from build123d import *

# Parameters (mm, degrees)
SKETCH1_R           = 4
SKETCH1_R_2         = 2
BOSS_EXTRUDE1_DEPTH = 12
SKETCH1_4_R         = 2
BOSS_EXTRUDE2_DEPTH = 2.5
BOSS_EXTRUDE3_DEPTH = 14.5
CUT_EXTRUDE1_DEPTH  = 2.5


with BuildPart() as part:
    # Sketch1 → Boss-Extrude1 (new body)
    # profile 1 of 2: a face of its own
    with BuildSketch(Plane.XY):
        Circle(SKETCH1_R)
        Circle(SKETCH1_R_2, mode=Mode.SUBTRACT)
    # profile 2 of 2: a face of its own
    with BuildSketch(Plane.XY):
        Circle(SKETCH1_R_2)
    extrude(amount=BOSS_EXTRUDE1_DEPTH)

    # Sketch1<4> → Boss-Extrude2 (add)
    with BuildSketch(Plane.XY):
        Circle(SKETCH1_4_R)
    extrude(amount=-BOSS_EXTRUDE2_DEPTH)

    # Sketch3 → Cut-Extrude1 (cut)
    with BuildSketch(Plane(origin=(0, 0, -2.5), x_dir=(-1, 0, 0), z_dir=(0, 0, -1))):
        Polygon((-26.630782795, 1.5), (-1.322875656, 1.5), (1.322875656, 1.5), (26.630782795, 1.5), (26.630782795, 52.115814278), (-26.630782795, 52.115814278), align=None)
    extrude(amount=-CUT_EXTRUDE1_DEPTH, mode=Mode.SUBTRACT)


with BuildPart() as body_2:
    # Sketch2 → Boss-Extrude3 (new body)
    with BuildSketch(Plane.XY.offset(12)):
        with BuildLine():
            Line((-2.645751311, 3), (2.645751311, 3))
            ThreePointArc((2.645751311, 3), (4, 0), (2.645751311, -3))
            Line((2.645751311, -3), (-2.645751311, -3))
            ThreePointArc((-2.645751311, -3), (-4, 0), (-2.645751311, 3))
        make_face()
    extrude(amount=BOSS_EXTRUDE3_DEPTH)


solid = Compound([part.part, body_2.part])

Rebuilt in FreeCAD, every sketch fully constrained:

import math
import FreeCAD as App
import Part
import Sketcher

doc = App.newDocument("Part")
body = doc.addObject("PartDesign::Body", "Body")

sketch1 = body.newObject("Sketcher::SketchObject", "Sketch")
sketch1.AttachmentSupport = (doc.getObject("XY_Plane"), [""])
sketch1.MapMode = "FlatFace"
sketch1.addGeometry(Part.Circle(App.Vector(0, 0, 0), App.Vector(0, 0, 1), 4), False)
sketch1.addConstraint([
    Sketcher.Constraint("Coincident", 0, 3, -1, 1),
    Sketcher.Constraint("Diameter", 0, 8.0),
])
pad1 = body.newObject("PartDesign::Pad", "Pad")
pad1.Profile = sketch1
pad1.Length = 12

sketch2 = body.newObject("Sketcher::SketchObject", "Sketch001")
sketch2.AttachmentSupport = (doc.getObject("XY_Plane"), [""])
sketch2.MapMode = "FlatFace"
sketch2.addGeometry(Part.Circle(App.Vector(0, 0, 0), App.Vector(0, 0, 1), 2), False)
sketch2.addConstraint([
    Sketcher.Constraint("Coincident", 0, 3, -1, 1),
    Sketcher.Constraint("Diameter", 0, 4.0),
])
pad2 = body.newObject("PartDesign::Pad", "Pad001")
pad2.Profile = sketch2
pad2.Length = 2.5
pad2.Reversed = True

sketch3 = body.newObject("Sketcher::SketchObject", "Sketch002")
sketch3.AttachmentSupport = (doc.getObject("XY_Plane"), [""])
sketch3.MapMode = "FlatFace"
sketch3.AttachmentOffset = App.Placement(App.Vector(0, 0, -2.5), App.Rotation())
sketch3.addGeometry([
    Part.LineSegment(App.Vector(27, 2, 0), App.Vector(-27, 2, 0)),
    Part.LineSegment(App.Vector(-27, 2, 0), App.Vector(-27, 52, 0)),
    Part.LineSegment(App.Vector(-27, 52, 0), App.Vector(27, 52, 0)),
    Part.LineSegment(App.Vector(27, 52, 0), App.Vector(27, 2, 0)),
], False)
sketch3.addConstraint([
    Sketcher.Constraint("Coincident", 0, 2, 1, 1),
    Sketcher.Constraint("Coincident", 1, 2, 2, 1),
    Sketcher.Constraint("Coincident", 2, 2, 3, 1),
    Sketcher.Constraint("Coincident", 3, 2, 0, 1),
    Sketcher.Constraint("Horizontal", 0),
    Sketcher.Constraint("Vertical", 1),
    Sketcher.Constraint("Horizontal", 2),
    Sketcher.Constraint("Vertical", 3),
    Sketcher.Constraint("DistanceY", -1, 1, 0, 2, 1.5),
    Sketcher.Constraint("DistanceX", 0, 2, 0, 1, 53.261566),
    Sketcher.Constraint("DistanceY", 1, 1, 1, 2, 50.615814),
    Sketcher.Constraint("DistanceX", 0, 2, -1, 1, 26.630783),
])
pocket1 = body.newObject("PartDesign::Pocket", "Pocket")
pocket1.Profile = sketch3
pocket1.Length = 2.5
pocket1.Reversed = True
body2 = doc.addObject("PartDesign::Body", "Body001")

sketch4 = body2.newObject("Sketcher::SketchObject", "Sketch003")
sketch4.AttachmentSupport = (doc.getObject("XY_Plane001"), [""])
sketch4.MapMode = "FlatFace"
sketch4.AttachmentOffset = App.Placement(App.Vector(0, 0, 12), App.Rotation())
sketch4.addGeometry([
    Part.LineSegment(App.Vector(2.6, 3, 0), App.Vector(-2.6, 3, 0)),
    Part.ArcOfCircle(Part.Circle(App.Vector(0, 0, 0), App.Vector(0, 0, 1), 4), math.radians(131), math.radians(229)),
    Part.LineSegment(App.Vector(-2.6, -3, 0), App.Vector(2.6, -3, 0)),
    Part.ArcOfCircle(Part.Circle(App.Vector(0, 0, 0), App.Vector(0, 0, 1), 4), math.radians(-49), math.radians(49)),
], False)
sketch4.addConstraint([
    Sketcher.Constraint("Coincident", 0, 2, 1, 1),
    Sketcher.Constraint("Coincident", 1, 2, 2, 1),
    Sketcher.Constraint("Coincident", 2, 2, 3, 1),
    Sketcher.Constraint("Coincident", 3, 2, 0, 1),
    Sketcher.Constraint("Horizontal", 0),
    Sketcher.Constraint("Horizontal", 2),
    Sketcher.Constraint("Coincident", 1, 3, -1, 1),
    Sketcher.Constraint("Coincident", 3, 3, -1, 1),
    Sketcher.Constraint("Equal", 1, 3),
    Sketcher.Constraint("Vertical", 0, 2, 1, 2),
    Sketcher.Constraint("Radius", 1, 4.0),
    Sketcher.Constraint("DistanceY", -1, 1, 0, 2, 3.0),
])
pad3 = body2.newObject("PartDesign::Pad", "Pad002")
pad3.Profile = sketch4
pad3.Length = 14.5

doc.recompute()
